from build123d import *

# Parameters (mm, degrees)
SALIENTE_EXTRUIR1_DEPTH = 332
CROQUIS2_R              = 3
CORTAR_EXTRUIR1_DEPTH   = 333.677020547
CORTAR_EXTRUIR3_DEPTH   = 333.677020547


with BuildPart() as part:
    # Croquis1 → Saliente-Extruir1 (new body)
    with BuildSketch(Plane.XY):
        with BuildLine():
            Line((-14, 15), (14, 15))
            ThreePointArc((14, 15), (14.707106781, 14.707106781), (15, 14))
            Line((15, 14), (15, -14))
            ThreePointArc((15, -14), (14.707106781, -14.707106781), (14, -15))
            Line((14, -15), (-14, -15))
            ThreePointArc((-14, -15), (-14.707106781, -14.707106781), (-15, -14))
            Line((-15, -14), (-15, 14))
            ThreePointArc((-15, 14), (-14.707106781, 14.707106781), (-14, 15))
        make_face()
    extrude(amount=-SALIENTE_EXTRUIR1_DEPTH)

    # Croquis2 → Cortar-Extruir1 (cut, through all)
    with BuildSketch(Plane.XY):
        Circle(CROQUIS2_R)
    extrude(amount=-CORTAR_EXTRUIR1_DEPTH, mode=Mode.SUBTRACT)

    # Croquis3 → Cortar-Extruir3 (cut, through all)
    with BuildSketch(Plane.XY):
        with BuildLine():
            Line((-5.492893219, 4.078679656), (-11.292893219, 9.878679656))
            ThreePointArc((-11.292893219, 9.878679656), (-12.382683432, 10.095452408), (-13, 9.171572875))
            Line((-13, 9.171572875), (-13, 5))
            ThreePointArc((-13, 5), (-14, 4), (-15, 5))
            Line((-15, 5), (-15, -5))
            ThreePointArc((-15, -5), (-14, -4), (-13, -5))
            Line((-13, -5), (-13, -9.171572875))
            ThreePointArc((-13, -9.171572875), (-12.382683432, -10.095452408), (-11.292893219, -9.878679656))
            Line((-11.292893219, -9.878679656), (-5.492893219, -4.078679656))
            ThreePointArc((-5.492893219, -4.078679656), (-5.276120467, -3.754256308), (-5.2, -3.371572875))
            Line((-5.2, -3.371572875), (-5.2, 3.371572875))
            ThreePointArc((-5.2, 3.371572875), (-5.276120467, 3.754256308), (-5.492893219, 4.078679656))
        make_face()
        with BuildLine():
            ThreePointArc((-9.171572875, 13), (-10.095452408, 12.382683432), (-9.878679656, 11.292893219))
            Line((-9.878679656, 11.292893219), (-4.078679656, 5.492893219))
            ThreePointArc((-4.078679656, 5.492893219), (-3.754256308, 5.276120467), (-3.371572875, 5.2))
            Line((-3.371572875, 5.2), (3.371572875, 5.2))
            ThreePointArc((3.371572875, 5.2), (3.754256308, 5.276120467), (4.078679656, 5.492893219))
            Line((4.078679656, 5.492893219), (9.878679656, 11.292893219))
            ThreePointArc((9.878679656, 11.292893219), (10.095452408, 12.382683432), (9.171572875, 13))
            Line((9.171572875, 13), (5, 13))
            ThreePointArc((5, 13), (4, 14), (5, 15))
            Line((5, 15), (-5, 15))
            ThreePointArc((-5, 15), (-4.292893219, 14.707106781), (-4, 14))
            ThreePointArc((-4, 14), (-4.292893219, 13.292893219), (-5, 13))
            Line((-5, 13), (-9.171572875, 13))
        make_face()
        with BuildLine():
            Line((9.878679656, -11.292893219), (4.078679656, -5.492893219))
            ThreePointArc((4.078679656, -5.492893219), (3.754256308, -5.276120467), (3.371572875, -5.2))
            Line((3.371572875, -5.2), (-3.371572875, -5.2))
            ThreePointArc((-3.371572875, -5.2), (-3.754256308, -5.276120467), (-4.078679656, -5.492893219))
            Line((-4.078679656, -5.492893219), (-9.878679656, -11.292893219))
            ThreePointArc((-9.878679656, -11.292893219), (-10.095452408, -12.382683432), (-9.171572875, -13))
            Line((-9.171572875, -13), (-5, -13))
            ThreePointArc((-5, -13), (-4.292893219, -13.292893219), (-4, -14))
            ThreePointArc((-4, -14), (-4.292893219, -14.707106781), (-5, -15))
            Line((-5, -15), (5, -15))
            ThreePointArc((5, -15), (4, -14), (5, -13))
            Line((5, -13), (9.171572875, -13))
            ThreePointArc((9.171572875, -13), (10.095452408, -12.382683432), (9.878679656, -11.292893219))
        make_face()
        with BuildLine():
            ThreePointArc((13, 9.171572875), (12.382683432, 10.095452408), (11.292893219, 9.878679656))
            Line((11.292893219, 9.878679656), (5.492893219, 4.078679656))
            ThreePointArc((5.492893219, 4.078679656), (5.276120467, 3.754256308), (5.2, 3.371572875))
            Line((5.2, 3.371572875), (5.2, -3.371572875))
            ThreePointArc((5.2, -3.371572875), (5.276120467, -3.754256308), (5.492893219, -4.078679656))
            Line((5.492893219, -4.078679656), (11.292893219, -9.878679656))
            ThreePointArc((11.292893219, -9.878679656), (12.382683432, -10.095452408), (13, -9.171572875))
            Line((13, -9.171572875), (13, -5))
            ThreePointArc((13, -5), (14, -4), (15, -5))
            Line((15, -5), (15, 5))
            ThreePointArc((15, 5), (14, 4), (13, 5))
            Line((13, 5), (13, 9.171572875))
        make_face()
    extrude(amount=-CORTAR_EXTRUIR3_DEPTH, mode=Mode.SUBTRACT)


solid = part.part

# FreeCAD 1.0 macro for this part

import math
import FreeCAD as App
import Part
import Sketcher
Q = App.Units.Quantity

doc = App.newDocument("Part")
body = doc.addObject("PartDesign::Body", "Body")

# Sketch on XY plane
sketch1 = body.newObject("Sketcher::SketchObject", "Sketch")
sketch1.AttachmentSupport = (doc.getObject("XY_Plane"), [""])
sketch1.MapMode = "FlatFace"
sketch1.addGeometry([
    Part.LineSegment(App.Vector(14, 15, 0), App.Vector(-14, 15, 0)),  # 0
    Part.ArcOfCircle(Part.Circle(App.Vector(-14, 14, 0), App.Vector(0, 0, 1), 1), math.radians(90), math.radians(180)),  # 1
    Part.LineSegment(App.Vector(-15, 14, 0), App.Vector(-15, -14, 0)),  # 2
    Part.ArcOfCircle(Part.Circle(App.Vector(-14, -14, 0), App.Vector(0, 0, 1), 1), math.radians(-180), math.radians(-90)),  # 3
    Part.LineSegment(App.Vector(-14, -15, 0), App.Vector(14, -15, 0)),  # 4
    Part.ArcOfCircle(Part.Circle(App.Vector(14, -14, 0), App.Vector(0, 0, 1), 1), math.radians(-90), math.radians(0)),  # 5
    Part.LineSegment(App.Vector(15, -14, 0), App.Vector(15, 14, 0)),  # 6
    Part.ArcOfCircle(Part.Circle(App.Vector(14, 14, 0), App.Vector(0, 0, 1), 1), math.radians(0), math.radians(90)),  # 7
], False)
sketch1.addConstraint([
    Sketcher.Constraint("Tangent", 0, 2, 1, 1),
    Sketcher.Constraint("Tangent", 1, 2, 2, 1),
    Sketcher.Constraint("Tangent", 2, 2, 3, 1),
    Sketcher.Constraint("Tangent", 3, 2, 4, 1),
    Sketcher.Constraint("Tangent", 4, 2, 5, 1),
    Sketcher.Constraint("Tangent", 5, 2, 6, 1),
    Sketcher.Constraint("Tangent", 6, 2, 7, 1),
    Sketcher.Constraint("Tangent", 7, 2, 0, 1),
    Sketcher.Constraint("Horizontal", 0),
    Sketcher.Constraint("Vertical", 2),
    Sketcher.Constraint("Horizontal", 4),
    Sketcher.Constraint("Vertical", 6),
    Sketcher.Constraint("Equal", 1, 3),
    Sketcher.Constraint("Equal", 3, 5),
    Sketcher.Constraint("Equal", 5, 7),
    Sketcher.Constraint("Symmetric", 1, 3, 5, 3, -1, 1),
    Sketcher.Constraint("Equal", 4, 2),
    Sketcher.Constraint("Radius", 1, Q("1 mm")),
    Sketcher.Constraint("DistanceX", 0, 2, 0, 1, Q("28 mm")),
])
pad1 = body.newObject("PartDesign::Pad", "Pad")
pad1.Profile = sketch1
pad1.Length = 332
pad1.Reversed = True

# Sketch on XY plane
sketch2 = body.newObject("Sketcher::SketchObject", "Sketch001")
sketch2.AttachmentSupport = (doc.getObject("XY_Plane"), [""])
sketch2.MapMode = "FlatFace"
sketch2.addGeometry(Part.Circle(App.Vector(0, 0, 0), App.Vector(0, 0, 1), 3), False)
sketch2.addConstraint([
    Sketcher.Constraint("Coincident", 0, 3, -1, 1),
    Sketcher.Constraint("Diameter", 0, Q("6 mm")),
])
pocket1 = body.newObject("PartDesign::Pocket", "Pocket")
pocket1.Profile = sketch2
pocket1.Type = "ThroughAll"

# Sketch on XY plane
sketch3 = body.newObject("Sketcher::SketchObject", "Sketch002")
sketch3.AttachmentSupport = (doc.getObject("XY_Plane"), [""])
sketch3.MapMode = "FlatFace"
sketch3.addGeometry([
    Part.LineSegment(App.Vector(-5.5, 4.1, 0), App.Vector(-11.3, 9.9, 0)),  # 0
    Part.ArcOfCircle(Part.Circle(App.Vector(-12, 9.2, 0), App.Vector(0, 0, 1), 1), math.radians(45), math.radians(180)),  # 1
    Part.LineSegment(App.Vector(-13, 9.2, 0), App.Vector(-13, 5, 0)),  # 2
    Part.ArcOfCircle(Part.Circle(App.Vector(-14, 5, 0), App.Vector(0, 0, 1), 1), math.radians(180), math.radians(360)),  # 3
    Part.LineSegment(App.Vector(-15, 5, 0), App.Vector(-15, -5, 0)),  # 4
    Part.ArcOfCircle(Part.Circle(App.Vector(-14, -5, 0), App.Vector(0, 0, 1), 1), math.radians(0), math.radians(180)),  # 5
    Part.LineSegment(App.Vector(-13, -5, 0), App.Vector(-13, -9.2, 0)),  # 6
    Part.ArcOfCircle(Part.Circle(App.Vector(-12, -9.2, 0), App.Vector(0, 0, 1), 1), math.radians(180), math.radians(315)),  # 7
    Part.LineSegment(App.Vector(-11.3, -9.9, 0), App.Vector(-5.5, -4.1, 0)),  # 8
    Part.ArcOfCircle(Part.Circle(App.Vector(-6.2, -3.4, 0), App.Vector(0, 0, 1), 1), math.radians(-45), math.radians(0)),  # 9
    Part.LineSegment(App.Vector(-5.2, -3.4, 0), App.Vector(-5.2, 3.4, 0)),  # 10
    Part.ArcOfCircle(Part.Circle(App.Vector(-6.2, 3.4, 0), App.Vector(0, 0, 1), 1), math.radians(0), math.radians(45)),  # 11
    Part.ArcOfCircle(Part.Circle(App.Vector(-9.2, 12, 0), App.Vector(0, 0, 1), 1), math.radians(90), math.radians(225)),  # 12
    Part.LineSegment(App.Vector(-9.9, 11.3, 0), App.Vector(-4.1, 5.5, 0)),  # 13
    Part.ArcOfCircle(Part.Circle(App.Vector(-3.4, 6.2, 0), App.Vector(0, 0, 1), 1), math.radians(-135), math.radians(-90)),  # 14
    Part.LineSegment(App.Vector(-3.4, 5.2, 0), App.Vector(3.4, 5.2, 0)),  # 15
    Part.ArcOfCircle(Part.Circle(App.Vector(3.4, 6.2, 0), App.Vector(0, 0, 1), 1), math.radians(-90), math.radians(-45)),  # 16
    Part.LineSegment(App.Vector(4.1, 5.5, 0), App.Vector(9.9, 11.3, 0)),  # 17
    Part.ArcOfCircle(Part.Circle(App.Vector(9.2, 12, 0), App.Vector(0, 0, 1), 1), math.radians(-45), math.radians(90)),  # 18
    Part.LineSegment(App.Vector(9.2, 13, 0), App.Vector(5, 13, 0)),  # 19
    Part.ArcOfCircle(Part.Circle(App.Vector(5, 14, 0), App.Vector(0, 0, 1), 1), math.radians(90), math.radians(270)),  # 20
    Part.LineSegment(App.Vector(5, 15, 0), App.Vector(-5, 15, 0)),  # 21
    Part.ArcOfCircle(Part.Circle(App.Vector(-5, 14, 0), App.Vector(0, 0, 1), 1), math.radians(0), math.radians(90)),  # 22
    Part.ArcOfCircle(Part.Circle(App.Vector(-5, 14, 0), App.Vector(0, 0, 1), 1), math.radians(-90), math.radians(0)),  # 23
    Part.LineSegment(App.Vector(-5, 13, 0), App.Vector(-9.2, 13, 0)),  # 24
    Part.LineSegment(App.Vector(9.9, -11.3, 0), App.Vector(4.1, -5.5, 0)),  # 25
    Part.ArcOfCircle(Part.Circle(App.Vector(3.4, -6.2, 0), App.Vector(0, 0, 1), 1), math.radians(45), math.radians(90)),  # 26
    Part.LineSegment(App.Vector(3.4, -5.2, 0), App.Vector(-3.4, -5.2, 0)),  # 27
    Part.ArcOfCircle(Part.Circle(App.Vector(-3.4, -6.2, 0), App.Vector(0, 0, 1), 1), math.radians(90), math.radians(135)),  # 28
    Part.LineSegment(App.Vector(-4.1, -5.5, 0), App.Vector(-9.9, -11.3, 0)),  # 29
    Part.ArcOfCircle(Part.Circle(App.Vector(-9.2, -12, 0), App.Vector(0, 0, 1), 1), math.radians(135), math.radians(270)),  # 30
    Part.LineSegment(App.Vector(-9.2, -13, 0), App.Vector(-5, -13, 0)),  # 31
    Part.ArcOfCircle(Part.Circle(App.Vector(-5, -14, 0), App.Vector(0, 0, 1), 1), math.radians(0), math.radians(90)),  # 32
    Part.ArcOfCircle(Part.Circle(App.Vector(-5, -14, 0), App.Vector(0, 0, 1), 1), math.radians(-90), math.radians(0)),  # 33
    Part.LineSegment(App.Vector(-5, -15, 0), App.Vector(5, -15, 0)),  # 34
    Part.ArcOfCircle(Part.Circle(App.Vector(5, -14, 0), App.Vector(0, 0, 1), 1), math.radians(90), math.radians(270)),  # 35
    Part.LineSegment(App.Vector(5, -13, 0), App.Vector(9.2, -13, 0)),  # 36
    Part.ArcOfCircle(Part.Circle(App.Vector(9.2, -12, 0), App.Vector(0, 0, 1), 1), math.radians(-90), math.radians(45)),  # 37
    Part.ArcOfCircle(Part.Circle(App.Vector(12, 9.2, 0), App.Vector(0, 0, 1), 1), math.radians(0), math.radians(135)),  # 38
    Part.LineSegment(App.Vector(11.3, 9.9, 0), App.Vector(5.5, 4.1, 0)),  # 39
    Part.ArcOfCircle(Part.Circle(App.Vector(6.2, 3.4, 0), App.Vector(0, 0, 1), 1), math.radians(135), math.radians(180)),  # 40
    Part.LineSegment(App.Vector(5.2, 3.4, 0), App.Vector(5.2, -3.4, 0)),  # 41
    Part.ArcOfCircle(Part.Circle(App.Vector(6.2, -3.4, 0), App.Vector(0, 0, 1), 1), math.radians(180), math.radians(225)),  # 42
    Part.LineSegment(App.Vector(5.5, -4.1, 0), App.Vector(11.3, -9.9, 0)),  # 43
    Part.ArcOfCircle(Part.Circle(App.Vector(12, -9.2, 0), App.Vector(0, 0, 1), 1), math.radians(-135), math.radians(0)),  # 44
    Part.LineSegment(App.Vector(13, -9.2, 0), App.Vector(13, -5, 0)),  # 45
    Part.ArcOfCircle(Part.Circle(App.Vector(14, -5, 0), App.Vector(0, 0, 1), 1), math.radians(0), math.radians(180)),  # 46
    Part.LineSegment(App.Vector(15, -5, 0), App.Vector(15, 5, 0)),  # 47
    Part.ArcOfCircle(Part.Circle(App.Vector(14, 5, 0), App.Vector(0, 0, 1), 1), math.radians(180), math.radians(360)),  # 48
    Part.LineSegment(App.Vector(13, 5, 0), App.Vector(13, 9.2, 0)),  # 49
], False)
sketch3.addConstraint([
    Sketcher.Constraint("Tangent", 0, 2, 1, 1),
    Sketcher.Constraint("Tangent", 1, 2, 2, 1),
    Sketcher.Constraint("Tangent", 2, 2, 3, 2),
    Sketcher.Constraint("Tangent", 3, 1, 4, 1),
    Sketcher.Constraint("Tangent", 4, 2, 5, 2),
    Sketcher.Constraint("Tangent", 5, 1, 6, 1),
    Sketcher.Constraint("Tangent", 6, 2, 7, 1),
    Sketcher.Constraint("Tangent", 7, 2, 8, 1),
    Sketcher.Constraint("Tangent", 8, 2, 9, 1),
    Sketcher.Constraint("Tangent", 9, 2, 10, 1),
    Sketcher.Constraint("Tangent", 10, 2, 11, 1),
    Sketcher.Constraint("Tangent", 11, 2, 0, 1),
    Sketcher.Constraint("Tangent", 12, 2, 13, 1),
    Sketcher.Constraint("Tangent", 13, 2, 14, 1),
    Sketcher.Constraint("Tangent", 14, 2, 15, 1),
    Sketcher.Constraint("Tangent", 15, 2, 16, 1),
    Sketcher.Constraint("Tangent", 16, 2, 17, 1),
    Sketcher.Constraint("Tangent", 17, 2, 18, 1),
    Sketcher.Constraint("Tangent", 18, 2, 19, 1),
    Sketcher.Constraint("Tangent", 19, 2, 20, 2),
    Sketcher.Constraint("Tangent", 20, 1, 21, 1),
    Sketcher.Constraint("Tangent", 21, 2, 22, 2),
    Sketcher.Constraint("Tangent", 22, 1, 23, 2),
    Sketcher.Constraint("Tangent", 23, 1, 24, 1),
    Sketcher.Constraint("Tangent", 24, 2, 12, 1),
    Sketcher.Constraint("Tangent", 25, 2, 26, 1),
    Sketcher.Constraint("Tangent", 26, 2, 27, 1),
    Sketcher.Constraint("Tangent", 27, 2, 28, 1),
    Sketcher.Constraint("Tangent", 28, 2, 29, 1),
    Sketcher.Constraint("Tangent", 29, 2, 30, 1),
    Sketcher.Constraint("Tangent", 30, 2, 31, 1),
    Sketcher.Constraint("Tangent", 31, 2, 32, 2),
    Sketcher.Constraint("Tangent", 32, 1, 33, 2),
    Sketcher.Constraint("Tangent", 33, 1, 34, 1),
    Sketcher.Constraint("Tangent", 34, 2, 35, 2),
    Sketcher.Constraint("Tangent", 35, 1, 36, 1),
    Sketcher.Constraint("Tangent", 36, 2, 37, 1),
    Sketcher.Constraint("Tangent", 37, 2, 25, 1),
    Sketcher.Constraint("Tangent", 38, 2, 39, 1),
    Sketcher.Constraint("Tangent", 39, 2, 40, 1),
    Sketcher.Constraint("Tangent", 40, 2, 41, 1),
    Sketcher.Constraint("Tangent", 41, 2, 42, 1),
    Sketcher.Constraint("Tangent", 42, 2, 43, 1),
    Sketcher.Constraint("Tangent", 43, 2, 44, 1),
    Sketcher.Constraint("Tangent", 44, 2, 45, 1),
    Sketcher.Constraint("Tangent", 45, 2, 46, 2),
    Sketcher.Constraint("Tangent", 46, 1, 47, 1),
    Sketcher.Constraint("Tangent", 47, 2, 48, 2),
    Sketcher.Constraint("Tangent", 48, 1, 49, 1),
    Sketcher.Constraint("Tangent", 49, 2, 38, 1),
    Sketcher.Constraint("Vertical", 2),
    Sketcher.Constraint("Vertical", 4),
    Sketcher.Constraint("Vertical", 6),
    Sketcher.Constraint("Vertical", 10),
    Sketcher.Constraint("Horizontal", 15),
    Sketcher.Constraint("Horizontal", 19),
    Sketcher.Constraint("Horizontal", 21),
    Sketcher.Constraint("Horizontal", 24),
    Sketcher.Constraint("Horizontal", 27),
    Sketcher.Constraint("Horizontal", 31),
    Sketcher.Constraint("Horizontal", 34),
    Sketcher.Constraint("Horizontal", 36),
    Sketcher.Constraint("Vertical", 41),
    Sketcher.Constraint("Vertical", 45),
    Sketcher.Constraint("Vertical", 47),
    Sketcher.Constraint("Vertical", 49),
    Sketcher.Constraint("Equal", 1, 3),
    Sketcher.Constraint("Equal", 3, 5),
    Sketcher.Constraint("Equal", 5, 7),
    Sketcher.Constraint("Equal", 7, 9),
    Sketcher.Constraint("Equal", 9, 11),
    Sketcher.Constraint("Equal", 11, 12),
    Sketcher.Constraint("Equal", 12, 14),
    Sketcher.Constraint("Equal", 14, 16),
    Sketcher.Constraint("Equal", 16, 18),
    Sketcher.Constraint("Equal", 18, 20),
    Sketcher.Constraint("Equal", 20, 22),
    Sketcher.Constraint("Equal", 22, 23),
    Sketcher.Constraint("Equal", 23, 26),
    Sketcher.Constraint("Equal", 26, 28),
    Sketcher.Constraint("Equal", 28, 30),
    Sketcher.Constraint("Equal", 30, 32),
    Sketcher.Constraint("Equal", 32, 33),
    Sketcher.Constraint("Equal", 33, 35),
    Sketcher.Constraint("Equal", 35, 37),
    Sketcher.Constraint("Equal", 37, 38),
    Sketcher.Constraint("Equal", 38, 40),
    Sketcher.Constraint("Equal", 40, 42),
    Sketcher.Constraint("Equal", 42, 44),
    Sketcher.Constraint("Equal", 44, 46),
    Sketcher.Constraint("Equal", 46, 48),
    Sketcher.Constraint("Symmetric", 14, 3, 26, 3, -1, 1),
    Sketcher.Constraint("Symmetric", 18, 3, 30, 3, -1, 1),
    Sketcher.Constraint("Symmetric", 7, 3, 38, 3, -1, 1),
    Sketcher.Constraint("Symmetric", 9, 3, 40, 3, -1, 1),
    Sketcher.Constraint("Symmetric", 11, 2, 42, 2, -1, 1),
    Sketcher.Constraint("Symmetric", 13, 2, 16, 2, -2),
    Sketcher.Constraint("Symmetric", 25, 2, 28, 2, -2),
    Sketcher.Constraint("Symmetric", 0, 2, 38, 2, -2),
    Sketcher.Constraint("Symmetric", 22, 1, 32, 1, -1),
    Sketcher.Constraint("Perpendicular", 0, 8),
    Sketcher.Constraint("Perpendicular", 8, 13),
    Sketcher.Constraint("Horizontal", 5, 3, 46, 3),
    Sketcher.Constraint("Horizontal", 3, 3, 48, 3),
    Sketcher.Constraint("Horizontal", 23, 3, 22, 1),
    Sketcher.Constraint("Vertical", 20, 3, 35, 3),
    Sketcher.Constraint("Equal", 19, 24),
    Sketcher.Constraint("Equal", 36, 2),
    Sketcher.Constraint("Equal", 34, 4),
    Sketcher.Constraint("Equal", 2, 6),
    Sketcher.Constraint("Equal", 27, 10),
    Sketcher.Constraint("Radius", 1, Q("1 mm")),
    Sketcher.Constraint("DistanceX", 21, 2, 21, 1, Q("10 mm")),
    Sketcher.Constraint("DistanceX", 1, 3, -1, 1, Q("12 mm")),
    Sketcher.Constraint("DistanceY", -1, 1, 12, 3, Q("12 mm")),
    Sketcher.Constraint("DistanceX", 9, 3, -1, 1, Q("6.2 mm")),
    Sketcher.Constraint("DistanceX", 15, 1, 15, 2, Q("6.743146 mm")),
])
pocket2 = body.newObject("PartDesign::Pocket", "Pocket001")
pocket2.Profile = sketch3
pocket2.Type = "ThroughAll"

doc.recompute()
